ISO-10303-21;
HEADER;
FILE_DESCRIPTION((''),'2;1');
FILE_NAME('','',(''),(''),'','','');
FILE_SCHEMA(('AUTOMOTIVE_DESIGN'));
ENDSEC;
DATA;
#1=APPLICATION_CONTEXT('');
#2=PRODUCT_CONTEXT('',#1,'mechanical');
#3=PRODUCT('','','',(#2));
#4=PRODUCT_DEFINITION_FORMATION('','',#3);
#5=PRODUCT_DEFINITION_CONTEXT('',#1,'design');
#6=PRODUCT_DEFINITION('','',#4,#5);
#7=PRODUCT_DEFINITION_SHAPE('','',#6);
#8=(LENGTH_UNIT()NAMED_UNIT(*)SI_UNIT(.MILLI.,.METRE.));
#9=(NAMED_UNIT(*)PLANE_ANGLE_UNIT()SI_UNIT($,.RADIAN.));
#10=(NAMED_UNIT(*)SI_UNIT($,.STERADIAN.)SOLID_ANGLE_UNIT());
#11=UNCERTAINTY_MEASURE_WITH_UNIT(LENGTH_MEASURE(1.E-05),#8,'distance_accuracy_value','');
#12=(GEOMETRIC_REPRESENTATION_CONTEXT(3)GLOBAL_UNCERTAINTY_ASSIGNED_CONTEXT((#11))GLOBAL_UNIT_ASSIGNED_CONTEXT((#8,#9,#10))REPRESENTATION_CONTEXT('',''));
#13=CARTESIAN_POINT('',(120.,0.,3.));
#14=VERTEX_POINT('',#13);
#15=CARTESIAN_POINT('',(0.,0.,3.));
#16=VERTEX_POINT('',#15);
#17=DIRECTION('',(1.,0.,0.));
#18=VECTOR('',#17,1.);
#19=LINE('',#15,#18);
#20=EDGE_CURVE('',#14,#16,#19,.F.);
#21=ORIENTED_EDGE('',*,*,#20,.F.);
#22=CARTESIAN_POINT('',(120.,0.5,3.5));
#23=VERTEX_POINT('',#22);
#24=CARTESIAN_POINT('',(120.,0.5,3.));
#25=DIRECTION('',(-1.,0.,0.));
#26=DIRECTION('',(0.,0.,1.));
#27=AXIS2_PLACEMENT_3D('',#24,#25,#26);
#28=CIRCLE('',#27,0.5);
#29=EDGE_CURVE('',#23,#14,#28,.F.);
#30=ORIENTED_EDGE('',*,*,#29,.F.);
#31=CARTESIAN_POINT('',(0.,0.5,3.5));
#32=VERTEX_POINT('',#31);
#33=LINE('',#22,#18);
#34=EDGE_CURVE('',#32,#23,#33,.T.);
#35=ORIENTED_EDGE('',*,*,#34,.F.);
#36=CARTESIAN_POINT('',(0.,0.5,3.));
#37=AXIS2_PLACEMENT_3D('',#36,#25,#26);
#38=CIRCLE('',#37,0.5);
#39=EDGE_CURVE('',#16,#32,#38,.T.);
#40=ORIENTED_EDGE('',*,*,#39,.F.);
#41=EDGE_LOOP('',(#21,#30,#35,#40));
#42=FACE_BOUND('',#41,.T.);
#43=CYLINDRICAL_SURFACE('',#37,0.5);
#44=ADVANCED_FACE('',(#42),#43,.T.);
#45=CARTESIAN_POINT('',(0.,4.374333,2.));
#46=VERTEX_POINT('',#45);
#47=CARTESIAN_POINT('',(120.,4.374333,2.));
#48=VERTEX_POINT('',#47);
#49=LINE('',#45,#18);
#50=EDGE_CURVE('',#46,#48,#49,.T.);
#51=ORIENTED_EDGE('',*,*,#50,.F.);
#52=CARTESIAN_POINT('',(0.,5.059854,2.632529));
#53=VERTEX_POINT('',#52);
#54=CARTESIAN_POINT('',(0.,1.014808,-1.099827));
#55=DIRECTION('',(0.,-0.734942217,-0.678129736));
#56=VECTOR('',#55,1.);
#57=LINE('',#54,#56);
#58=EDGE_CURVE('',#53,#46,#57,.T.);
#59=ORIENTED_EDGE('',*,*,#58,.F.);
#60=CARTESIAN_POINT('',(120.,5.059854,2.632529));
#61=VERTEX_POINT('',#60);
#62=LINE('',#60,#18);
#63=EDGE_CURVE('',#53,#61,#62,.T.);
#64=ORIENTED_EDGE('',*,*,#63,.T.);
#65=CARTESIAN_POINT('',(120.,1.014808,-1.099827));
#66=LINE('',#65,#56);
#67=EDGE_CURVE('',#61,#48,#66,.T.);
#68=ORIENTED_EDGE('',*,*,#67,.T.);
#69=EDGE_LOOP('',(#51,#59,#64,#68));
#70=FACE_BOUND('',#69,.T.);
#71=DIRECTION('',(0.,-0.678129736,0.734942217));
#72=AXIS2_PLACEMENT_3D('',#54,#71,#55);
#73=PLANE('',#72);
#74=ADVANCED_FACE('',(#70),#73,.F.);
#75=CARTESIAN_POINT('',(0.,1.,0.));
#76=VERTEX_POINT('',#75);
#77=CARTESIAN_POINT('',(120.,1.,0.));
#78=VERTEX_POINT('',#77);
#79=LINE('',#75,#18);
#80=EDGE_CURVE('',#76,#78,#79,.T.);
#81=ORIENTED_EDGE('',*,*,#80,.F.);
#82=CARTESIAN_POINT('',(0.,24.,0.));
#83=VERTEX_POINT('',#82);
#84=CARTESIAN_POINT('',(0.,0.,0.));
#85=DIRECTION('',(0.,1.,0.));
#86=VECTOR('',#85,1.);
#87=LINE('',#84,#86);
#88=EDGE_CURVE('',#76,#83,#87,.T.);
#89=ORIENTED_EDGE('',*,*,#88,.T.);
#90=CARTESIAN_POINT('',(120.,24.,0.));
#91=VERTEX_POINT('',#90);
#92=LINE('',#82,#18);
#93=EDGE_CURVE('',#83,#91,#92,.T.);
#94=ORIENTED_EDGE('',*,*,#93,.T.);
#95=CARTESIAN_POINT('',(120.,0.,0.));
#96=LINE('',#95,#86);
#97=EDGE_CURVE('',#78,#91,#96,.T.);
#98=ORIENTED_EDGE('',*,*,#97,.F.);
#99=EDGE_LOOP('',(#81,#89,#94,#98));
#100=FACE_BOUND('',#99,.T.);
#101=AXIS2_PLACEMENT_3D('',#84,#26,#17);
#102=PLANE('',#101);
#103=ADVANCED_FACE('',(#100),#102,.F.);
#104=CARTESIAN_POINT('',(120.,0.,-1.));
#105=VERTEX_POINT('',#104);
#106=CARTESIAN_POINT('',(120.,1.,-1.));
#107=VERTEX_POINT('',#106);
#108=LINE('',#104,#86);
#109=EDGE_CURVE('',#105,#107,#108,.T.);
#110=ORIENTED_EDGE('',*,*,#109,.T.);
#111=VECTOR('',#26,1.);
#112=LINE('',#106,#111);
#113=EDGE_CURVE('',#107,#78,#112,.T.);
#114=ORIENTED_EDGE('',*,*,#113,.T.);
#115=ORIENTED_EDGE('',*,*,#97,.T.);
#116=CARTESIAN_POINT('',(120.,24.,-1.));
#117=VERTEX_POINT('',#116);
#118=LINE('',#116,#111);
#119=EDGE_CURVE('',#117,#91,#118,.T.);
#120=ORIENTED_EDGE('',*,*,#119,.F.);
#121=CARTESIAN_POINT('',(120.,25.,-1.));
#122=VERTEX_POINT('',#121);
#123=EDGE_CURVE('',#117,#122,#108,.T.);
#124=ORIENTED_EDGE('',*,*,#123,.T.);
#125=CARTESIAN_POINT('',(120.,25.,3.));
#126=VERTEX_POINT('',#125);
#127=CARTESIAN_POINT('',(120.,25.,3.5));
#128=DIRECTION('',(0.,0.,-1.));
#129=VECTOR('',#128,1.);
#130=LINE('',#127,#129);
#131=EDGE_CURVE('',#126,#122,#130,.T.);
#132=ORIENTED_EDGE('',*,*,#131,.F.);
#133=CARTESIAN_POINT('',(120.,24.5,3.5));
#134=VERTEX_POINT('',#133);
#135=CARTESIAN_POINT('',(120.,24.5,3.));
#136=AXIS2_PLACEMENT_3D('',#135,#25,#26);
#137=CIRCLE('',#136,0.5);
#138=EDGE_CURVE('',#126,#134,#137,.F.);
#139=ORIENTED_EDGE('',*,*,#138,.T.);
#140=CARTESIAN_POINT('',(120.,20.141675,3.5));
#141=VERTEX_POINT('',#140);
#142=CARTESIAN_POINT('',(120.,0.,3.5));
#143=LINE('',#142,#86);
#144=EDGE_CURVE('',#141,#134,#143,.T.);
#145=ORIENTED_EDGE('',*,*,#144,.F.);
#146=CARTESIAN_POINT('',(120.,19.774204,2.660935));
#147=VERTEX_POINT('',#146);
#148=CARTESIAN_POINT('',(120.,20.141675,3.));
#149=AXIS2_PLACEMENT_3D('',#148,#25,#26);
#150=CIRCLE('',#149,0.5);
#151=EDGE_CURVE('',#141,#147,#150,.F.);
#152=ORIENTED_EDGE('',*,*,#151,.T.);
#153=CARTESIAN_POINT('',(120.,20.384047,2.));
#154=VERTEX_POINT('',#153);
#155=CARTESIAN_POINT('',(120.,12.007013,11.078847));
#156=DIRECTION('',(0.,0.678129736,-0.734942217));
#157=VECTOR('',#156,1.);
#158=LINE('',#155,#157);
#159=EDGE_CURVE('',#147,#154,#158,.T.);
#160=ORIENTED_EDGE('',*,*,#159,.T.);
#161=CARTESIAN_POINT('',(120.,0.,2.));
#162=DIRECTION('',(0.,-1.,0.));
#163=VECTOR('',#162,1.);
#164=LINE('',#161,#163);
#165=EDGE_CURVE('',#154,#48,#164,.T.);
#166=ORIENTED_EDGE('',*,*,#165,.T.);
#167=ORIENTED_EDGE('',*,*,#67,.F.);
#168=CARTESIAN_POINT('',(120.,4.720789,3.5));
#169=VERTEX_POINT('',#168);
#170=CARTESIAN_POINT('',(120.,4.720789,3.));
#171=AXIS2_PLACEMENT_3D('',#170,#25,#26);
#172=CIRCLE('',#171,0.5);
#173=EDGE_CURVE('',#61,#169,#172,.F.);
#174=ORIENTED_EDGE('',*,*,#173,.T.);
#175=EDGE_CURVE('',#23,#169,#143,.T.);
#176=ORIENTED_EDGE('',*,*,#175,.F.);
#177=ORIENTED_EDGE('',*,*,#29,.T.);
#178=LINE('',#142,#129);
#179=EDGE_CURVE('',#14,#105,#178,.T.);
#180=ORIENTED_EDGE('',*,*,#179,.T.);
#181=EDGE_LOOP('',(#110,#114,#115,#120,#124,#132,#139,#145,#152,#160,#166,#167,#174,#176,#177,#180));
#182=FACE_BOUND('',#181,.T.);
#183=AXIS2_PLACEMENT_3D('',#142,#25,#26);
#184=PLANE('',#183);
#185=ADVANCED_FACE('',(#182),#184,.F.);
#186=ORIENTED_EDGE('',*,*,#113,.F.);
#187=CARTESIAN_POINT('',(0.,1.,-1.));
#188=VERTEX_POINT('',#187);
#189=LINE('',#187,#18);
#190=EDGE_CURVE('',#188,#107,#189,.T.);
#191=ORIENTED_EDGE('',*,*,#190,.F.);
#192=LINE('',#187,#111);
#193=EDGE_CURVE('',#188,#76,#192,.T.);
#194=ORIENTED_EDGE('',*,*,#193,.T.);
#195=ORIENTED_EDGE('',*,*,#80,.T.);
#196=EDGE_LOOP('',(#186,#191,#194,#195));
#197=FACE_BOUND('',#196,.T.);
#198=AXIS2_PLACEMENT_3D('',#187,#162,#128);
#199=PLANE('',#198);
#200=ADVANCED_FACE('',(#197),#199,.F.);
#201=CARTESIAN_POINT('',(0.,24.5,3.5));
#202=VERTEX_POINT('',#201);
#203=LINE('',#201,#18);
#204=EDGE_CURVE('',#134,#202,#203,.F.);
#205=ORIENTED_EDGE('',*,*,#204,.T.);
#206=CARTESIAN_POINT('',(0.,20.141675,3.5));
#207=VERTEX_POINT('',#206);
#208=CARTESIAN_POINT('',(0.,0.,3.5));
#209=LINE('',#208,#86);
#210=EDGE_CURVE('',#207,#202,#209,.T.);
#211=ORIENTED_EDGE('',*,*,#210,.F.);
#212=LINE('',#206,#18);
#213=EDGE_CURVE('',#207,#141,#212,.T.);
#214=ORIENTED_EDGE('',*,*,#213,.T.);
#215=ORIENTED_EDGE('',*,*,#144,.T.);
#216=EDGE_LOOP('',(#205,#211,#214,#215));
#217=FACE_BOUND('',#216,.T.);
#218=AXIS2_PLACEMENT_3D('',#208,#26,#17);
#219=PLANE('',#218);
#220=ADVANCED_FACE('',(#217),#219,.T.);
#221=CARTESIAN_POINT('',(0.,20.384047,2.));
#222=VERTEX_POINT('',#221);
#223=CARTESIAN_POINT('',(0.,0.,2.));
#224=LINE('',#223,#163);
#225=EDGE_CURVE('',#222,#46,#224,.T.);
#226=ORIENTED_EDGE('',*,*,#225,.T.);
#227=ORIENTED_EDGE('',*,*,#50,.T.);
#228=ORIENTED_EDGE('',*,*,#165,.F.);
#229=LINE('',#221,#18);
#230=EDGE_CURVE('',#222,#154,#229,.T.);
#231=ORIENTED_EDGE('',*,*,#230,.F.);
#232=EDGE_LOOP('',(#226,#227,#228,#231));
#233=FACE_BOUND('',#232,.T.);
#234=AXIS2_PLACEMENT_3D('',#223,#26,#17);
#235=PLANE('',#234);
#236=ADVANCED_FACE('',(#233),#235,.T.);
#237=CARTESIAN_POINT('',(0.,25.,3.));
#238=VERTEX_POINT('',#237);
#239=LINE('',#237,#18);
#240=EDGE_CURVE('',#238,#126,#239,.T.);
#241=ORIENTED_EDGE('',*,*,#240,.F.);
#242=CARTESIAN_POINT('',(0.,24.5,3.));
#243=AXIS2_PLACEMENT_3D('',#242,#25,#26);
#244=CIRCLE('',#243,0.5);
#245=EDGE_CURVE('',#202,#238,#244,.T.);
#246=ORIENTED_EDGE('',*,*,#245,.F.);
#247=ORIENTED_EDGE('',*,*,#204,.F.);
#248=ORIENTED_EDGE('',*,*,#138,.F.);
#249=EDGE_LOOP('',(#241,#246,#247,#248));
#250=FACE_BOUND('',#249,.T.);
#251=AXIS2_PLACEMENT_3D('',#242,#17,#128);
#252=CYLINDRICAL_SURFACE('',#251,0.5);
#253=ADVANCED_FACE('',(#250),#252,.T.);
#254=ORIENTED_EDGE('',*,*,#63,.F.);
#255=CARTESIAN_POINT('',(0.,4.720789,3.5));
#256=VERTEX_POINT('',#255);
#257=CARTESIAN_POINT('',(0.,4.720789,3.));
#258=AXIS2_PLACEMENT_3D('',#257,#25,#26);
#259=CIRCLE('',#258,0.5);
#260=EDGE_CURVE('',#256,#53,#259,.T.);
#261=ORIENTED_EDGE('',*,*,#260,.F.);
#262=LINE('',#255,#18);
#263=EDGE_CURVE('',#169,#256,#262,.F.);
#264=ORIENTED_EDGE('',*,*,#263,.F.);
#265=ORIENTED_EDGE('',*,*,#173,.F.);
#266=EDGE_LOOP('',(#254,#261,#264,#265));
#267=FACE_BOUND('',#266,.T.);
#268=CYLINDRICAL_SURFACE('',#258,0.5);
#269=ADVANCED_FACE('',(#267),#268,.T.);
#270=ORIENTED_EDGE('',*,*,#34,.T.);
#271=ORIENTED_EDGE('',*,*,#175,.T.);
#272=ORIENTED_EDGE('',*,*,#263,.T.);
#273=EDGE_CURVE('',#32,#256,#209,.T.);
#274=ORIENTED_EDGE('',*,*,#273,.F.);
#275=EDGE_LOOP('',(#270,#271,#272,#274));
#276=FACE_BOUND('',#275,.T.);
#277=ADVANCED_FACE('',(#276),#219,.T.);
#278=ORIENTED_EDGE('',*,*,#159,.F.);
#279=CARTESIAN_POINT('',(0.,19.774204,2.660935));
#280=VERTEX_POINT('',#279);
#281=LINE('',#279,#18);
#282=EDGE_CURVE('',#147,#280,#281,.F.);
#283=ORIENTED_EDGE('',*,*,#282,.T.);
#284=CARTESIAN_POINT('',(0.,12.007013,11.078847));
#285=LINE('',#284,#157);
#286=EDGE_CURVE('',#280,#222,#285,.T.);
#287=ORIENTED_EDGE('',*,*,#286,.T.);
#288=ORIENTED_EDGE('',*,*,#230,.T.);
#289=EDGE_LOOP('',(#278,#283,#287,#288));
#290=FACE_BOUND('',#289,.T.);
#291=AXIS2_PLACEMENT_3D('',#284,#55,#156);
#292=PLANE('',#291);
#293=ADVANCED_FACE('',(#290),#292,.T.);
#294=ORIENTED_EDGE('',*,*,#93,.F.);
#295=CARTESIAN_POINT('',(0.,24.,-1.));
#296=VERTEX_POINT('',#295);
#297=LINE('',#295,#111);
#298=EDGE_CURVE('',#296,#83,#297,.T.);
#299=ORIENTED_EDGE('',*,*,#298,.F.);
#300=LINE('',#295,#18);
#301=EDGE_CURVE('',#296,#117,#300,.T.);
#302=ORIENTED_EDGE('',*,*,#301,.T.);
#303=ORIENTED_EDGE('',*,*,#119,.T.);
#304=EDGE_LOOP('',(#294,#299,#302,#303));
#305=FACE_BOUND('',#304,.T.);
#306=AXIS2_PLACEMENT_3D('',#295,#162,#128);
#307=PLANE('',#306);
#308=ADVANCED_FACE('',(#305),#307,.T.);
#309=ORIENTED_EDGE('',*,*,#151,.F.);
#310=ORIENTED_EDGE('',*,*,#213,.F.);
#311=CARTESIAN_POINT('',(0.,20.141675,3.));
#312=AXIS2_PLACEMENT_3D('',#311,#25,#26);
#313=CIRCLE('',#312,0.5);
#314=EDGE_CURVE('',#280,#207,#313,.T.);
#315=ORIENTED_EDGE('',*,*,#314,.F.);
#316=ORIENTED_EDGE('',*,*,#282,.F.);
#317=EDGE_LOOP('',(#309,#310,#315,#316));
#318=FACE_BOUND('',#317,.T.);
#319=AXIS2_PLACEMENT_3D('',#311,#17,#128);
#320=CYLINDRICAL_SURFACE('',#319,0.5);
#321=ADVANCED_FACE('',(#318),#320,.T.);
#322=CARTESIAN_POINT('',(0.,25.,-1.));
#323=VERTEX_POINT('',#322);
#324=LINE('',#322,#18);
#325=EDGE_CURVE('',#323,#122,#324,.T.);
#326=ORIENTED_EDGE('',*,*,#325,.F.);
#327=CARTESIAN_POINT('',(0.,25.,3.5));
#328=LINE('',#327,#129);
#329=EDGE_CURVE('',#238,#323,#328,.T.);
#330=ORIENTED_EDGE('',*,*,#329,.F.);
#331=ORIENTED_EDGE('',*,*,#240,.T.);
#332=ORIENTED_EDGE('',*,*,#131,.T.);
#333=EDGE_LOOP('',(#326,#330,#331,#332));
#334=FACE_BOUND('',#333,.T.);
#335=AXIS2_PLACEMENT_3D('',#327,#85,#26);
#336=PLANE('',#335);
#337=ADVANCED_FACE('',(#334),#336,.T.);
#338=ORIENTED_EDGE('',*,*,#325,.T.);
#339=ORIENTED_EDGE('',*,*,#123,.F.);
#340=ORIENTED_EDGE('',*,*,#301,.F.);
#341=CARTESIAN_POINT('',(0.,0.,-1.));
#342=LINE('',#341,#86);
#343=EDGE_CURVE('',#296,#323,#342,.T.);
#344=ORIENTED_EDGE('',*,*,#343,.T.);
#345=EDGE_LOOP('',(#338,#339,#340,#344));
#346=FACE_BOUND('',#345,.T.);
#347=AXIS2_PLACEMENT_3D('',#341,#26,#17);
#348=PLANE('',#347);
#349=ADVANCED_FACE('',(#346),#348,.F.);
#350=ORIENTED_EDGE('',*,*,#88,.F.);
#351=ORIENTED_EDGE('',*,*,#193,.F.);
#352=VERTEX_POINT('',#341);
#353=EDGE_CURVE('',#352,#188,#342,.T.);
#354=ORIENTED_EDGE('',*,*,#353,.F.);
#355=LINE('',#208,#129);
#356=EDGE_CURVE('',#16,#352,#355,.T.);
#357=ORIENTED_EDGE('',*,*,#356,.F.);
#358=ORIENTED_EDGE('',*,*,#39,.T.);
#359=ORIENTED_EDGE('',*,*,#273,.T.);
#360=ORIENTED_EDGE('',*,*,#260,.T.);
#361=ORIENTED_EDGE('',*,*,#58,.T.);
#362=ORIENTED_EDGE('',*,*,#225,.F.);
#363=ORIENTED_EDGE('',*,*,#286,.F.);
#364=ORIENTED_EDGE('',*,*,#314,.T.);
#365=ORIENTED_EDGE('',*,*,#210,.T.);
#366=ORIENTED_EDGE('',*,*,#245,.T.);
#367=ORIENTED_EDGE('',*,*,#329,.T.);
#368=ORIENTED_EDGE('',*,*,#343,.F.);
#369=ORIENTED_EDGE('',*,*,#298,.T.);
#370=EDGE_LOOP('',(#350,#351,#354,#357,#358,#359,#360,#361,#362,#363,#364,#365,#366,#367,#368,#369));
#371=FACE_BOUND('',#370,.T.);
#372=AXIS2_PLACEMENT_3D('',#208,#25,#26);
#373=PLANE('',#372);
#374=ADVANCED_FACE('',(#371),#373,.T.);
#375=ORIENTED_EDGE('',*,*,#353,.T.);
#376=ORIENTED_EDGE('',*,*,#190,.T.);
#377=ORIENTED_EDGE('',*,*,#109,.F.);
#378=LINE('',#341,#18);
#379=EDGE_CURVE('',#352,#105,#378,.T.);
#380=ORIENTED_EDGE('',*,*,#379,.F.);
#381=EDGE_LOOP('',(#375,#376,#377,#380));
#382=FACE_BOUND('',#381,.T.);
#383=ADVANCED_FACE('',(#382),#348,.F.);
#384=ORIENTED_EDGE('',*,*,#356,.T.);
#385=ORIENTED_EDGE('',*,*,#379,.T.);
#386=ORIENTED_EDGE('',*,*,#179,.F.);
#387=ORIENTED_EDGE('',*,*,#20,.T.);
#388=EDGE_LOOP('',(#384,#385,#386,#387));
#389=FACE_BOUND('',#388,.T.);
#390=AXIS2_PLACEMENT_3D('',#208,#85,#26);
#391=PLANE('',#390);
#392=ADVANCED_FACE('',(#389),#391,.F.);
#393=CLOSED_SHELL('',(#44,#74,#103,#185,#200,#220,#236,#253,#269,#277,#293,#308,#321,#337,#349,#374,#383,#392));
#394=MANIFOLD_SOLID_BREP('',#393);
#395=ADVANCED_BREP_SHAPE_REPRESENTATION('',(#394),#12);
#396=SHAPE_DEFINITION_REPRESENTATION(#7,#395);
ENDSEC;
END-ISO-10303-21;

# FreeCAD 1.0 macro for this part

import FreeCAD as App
import Part
import Sketcher


def edges_at(feature, points):
    """Names of the edges that pass closest to the given points."""
    edges = feature.Shape.Edges
    near = lambda p: min(range(len(edges)), key=lambda i: edges[i].distToShape(Part.Vertex(*p))[0])
    return sorted({f"Edge{near(p) + 1}" for p in points})


def add_polygon(sketch, points):
    """Adds a closed chain of lines whose ends are joined by coincident constraints."""
    first, n = sketch.GeometryCount, len(points)
    for a, b in zip(points, points[1:] + points[:1]):
        sketch.addGeometry(Part.LineSegment(App.Vector(*a, 0), App.Vector(*b, 0)), False)
    for i in range(n):
        sketch.addConstraint(Sketcher.Constraint("Coincident", first + i, 2, first + (i + 1) % n, 1))

doc = App.newDocument("Part")
params = doc.addObject("Spreadsheet::Sheet", "Params")
for row, (alias, value) in enumerate([
    ("sketch1_width", "120 mm"),
    ("sketch1_height", "25 mm"),
    ("pad1_length", "3.5 mm"),
    ("sketch2_width", "120 mm"),
    ("sketch2_height", "1 mm"),
    ("pad2_length", "1 mm"),
    ("sketch3_width", "13 mm"),
    ("fillet_radius", "0.5 mm"),
    ("fillet2_radius", "0.5 mm"),
], start=1):
    params.set(f"A{row}", alias)
    params.set(f"B{row}", "=" + value)
    params.setAlias(f"B{row}", alias)

body = doc.addObject("PartDesign::Body", "Body")

# Sketch on XY plane
sketch1 = body.newObject("Sketcher::SketchObject", "Sketch")
sketch1.AttachmentSupport = (doc.getObject("XY_Plane"), [""])
sketch1.MapMode = "FlatFace"
add_polygon(sketch1, [(0, 25), (0, 0), (120, 0), (120, 25)])  # lines 0-3
sketch1.addConstraint([
    Sketcher.Constraint("Vertical", 0),
    Sketcher.Constraint("Horizontal", 1),
    Sketcher.Constraint("Vertical", 2),
    Sketcher.Constraint("Horizontal", 3),
    Sketcher.Constraint("Coincident", 0, 2, -1, 1),
    Sketcher.Constraint("DistanceX", 1, 1, 1, 2, 120.0),
    Sketcher.Constraint("DistanceY", 0, 2, 0, 1, 25.0),
])
sketch1.setExpression("Constraints[9]", "Params.sketch1_width")
sketch1.setExpression("Constraints[10]", "Params.sketch1_height")
pad1 = body.newObject("PartDesign::Pad", "Pad")
pad1.Profile = sketch1
pad1.setExpression("Length", "Params.pad1_length")

# Sketch on XY plane
sketch2 = body.newObject("Sketcher::SketchObject", "Sketch001")
sketch2.AttachmentSupport = (doc.getObject("XY_Plane"), [""])
sketch2.MapMode = "FlatFace"
add_polygon(sketch2, [(0, 25), (0, 24), (120, 24), (120, 25)])  # lines 0-3
add_polygon(sketch2, [(0, 1), (0, 0), (120, 0), (120, 1)])  # lines 4-7
sketch2.addConstraint([
    Sketcher.Constraint("Vertical", 0),
    Sketcher.Constraint("Horizontal", 1),
    Sketcher.Constraint("Vertical", 2),
    Sketcher.Constraint("Horizontal", 3),
    Sketcher.Constraint("Vertical", 4),
    Sketcher.Constraint("Horizontal", 5),
    Sketcher.Constraint("Vertical", 6),
    Sketcher.Constraint("Horizontal", 7),
    Sketcher.Constraint("Coincident", 4, 2, -1, 1),
    Sketcher.Constraint("PointOnObject", 0, 2, -2),
    Sketcher.Constraint("Vertical", 2, 2, 5, 2),
    Sketcher.Constraint("Equal", 2, 4),
    Sketcher.Constraint("DistanceX", 1, 1, 1, 2, 120.0),
    Sketcher.Constraint("DistanceY", 0, 2, 0, 1, 1.0),
    Sketcher.Constraint("DistanceY", -1, 1, 0, 2, 24.0),
])
sketch2.setExpression("Constraints[20]", "Params.sketch2_width")
sketch2.setExpression("Constraints[21]", "Params.sketch2_height")
pad2 = body.newObject("PartDesign::Pad", "Pad001")
pad2.Profile = sketch2
pad2.setExpression("Length", "Params.pad2_length")
pad2.Reversed = True

# Sketch on YZ plane
sketch3 = body.newObject("Sketcher::SketchObject", "Sketch002")
sketch3.AttachmentSupport = (doc.getObject("YZ_Plane"), [""])
sketch3.MapMode = "FlatFace"
sketch3.AttachmentOffset = App.Placement(App.Vector(0, 0, 120), App.Rotation())
add_polygon(sketch3, [(20.384047, 2), (19, 3.5), (6, 3.5), (4.374333, 2)])  # lines 0-3
sketch3.addConstraint([
    Sketcher.Constraint("Horizontal", 1),
    Sketcher.Constraint("Horizontal", 3),
    Sketcher.Constraint("Perpendicular", 0, 2),
    Sketcher.Constraint("DistanceX", 1, 2, 1, 1, 13.0),
    Sketcher.Constraint("DistanceX", -1, 1, 0, 2, 19.0),
    Sketcher.Constraint("DistanceY", -1, 1, 2, 2, 2.0),
    Sketcher.Constraint("DistanceY", -1, 1, 0, 2, 3.5),
    Sketcher.Constraint("DistanceX", 3, 1, 3, 2, 16.009714),
])
sketch3.setExpression("Constraints[7]", "Params.sketch3_width")
pocket1 = body.newObject("PartDesign::Pocket", "Pocket")
pocket1.Profile = sketch3
pocket1.Type = "ThroughAll"
doc.recompute()

fillet = body.newObject("PartDesign::Fillet", "Fillet")
fillet.Base = (pocket1, edges_at(pocket1, [(60, 19, 3.5), (60, 6, 3.5)]))
fillet.setExpression("Radius", "Params.fillet_radius")
doc.recompute()

fillet2 = body.newObject("PartDesign::Fillet", "Fillet001")
fillet2.Base = (fillet, edges_at(fillet, [(60, 0, 3.5), (60, 25, 3.5)]))
fillet2.setExpression("Radius", "Params.fillet2_radius")

doc.recompute()
